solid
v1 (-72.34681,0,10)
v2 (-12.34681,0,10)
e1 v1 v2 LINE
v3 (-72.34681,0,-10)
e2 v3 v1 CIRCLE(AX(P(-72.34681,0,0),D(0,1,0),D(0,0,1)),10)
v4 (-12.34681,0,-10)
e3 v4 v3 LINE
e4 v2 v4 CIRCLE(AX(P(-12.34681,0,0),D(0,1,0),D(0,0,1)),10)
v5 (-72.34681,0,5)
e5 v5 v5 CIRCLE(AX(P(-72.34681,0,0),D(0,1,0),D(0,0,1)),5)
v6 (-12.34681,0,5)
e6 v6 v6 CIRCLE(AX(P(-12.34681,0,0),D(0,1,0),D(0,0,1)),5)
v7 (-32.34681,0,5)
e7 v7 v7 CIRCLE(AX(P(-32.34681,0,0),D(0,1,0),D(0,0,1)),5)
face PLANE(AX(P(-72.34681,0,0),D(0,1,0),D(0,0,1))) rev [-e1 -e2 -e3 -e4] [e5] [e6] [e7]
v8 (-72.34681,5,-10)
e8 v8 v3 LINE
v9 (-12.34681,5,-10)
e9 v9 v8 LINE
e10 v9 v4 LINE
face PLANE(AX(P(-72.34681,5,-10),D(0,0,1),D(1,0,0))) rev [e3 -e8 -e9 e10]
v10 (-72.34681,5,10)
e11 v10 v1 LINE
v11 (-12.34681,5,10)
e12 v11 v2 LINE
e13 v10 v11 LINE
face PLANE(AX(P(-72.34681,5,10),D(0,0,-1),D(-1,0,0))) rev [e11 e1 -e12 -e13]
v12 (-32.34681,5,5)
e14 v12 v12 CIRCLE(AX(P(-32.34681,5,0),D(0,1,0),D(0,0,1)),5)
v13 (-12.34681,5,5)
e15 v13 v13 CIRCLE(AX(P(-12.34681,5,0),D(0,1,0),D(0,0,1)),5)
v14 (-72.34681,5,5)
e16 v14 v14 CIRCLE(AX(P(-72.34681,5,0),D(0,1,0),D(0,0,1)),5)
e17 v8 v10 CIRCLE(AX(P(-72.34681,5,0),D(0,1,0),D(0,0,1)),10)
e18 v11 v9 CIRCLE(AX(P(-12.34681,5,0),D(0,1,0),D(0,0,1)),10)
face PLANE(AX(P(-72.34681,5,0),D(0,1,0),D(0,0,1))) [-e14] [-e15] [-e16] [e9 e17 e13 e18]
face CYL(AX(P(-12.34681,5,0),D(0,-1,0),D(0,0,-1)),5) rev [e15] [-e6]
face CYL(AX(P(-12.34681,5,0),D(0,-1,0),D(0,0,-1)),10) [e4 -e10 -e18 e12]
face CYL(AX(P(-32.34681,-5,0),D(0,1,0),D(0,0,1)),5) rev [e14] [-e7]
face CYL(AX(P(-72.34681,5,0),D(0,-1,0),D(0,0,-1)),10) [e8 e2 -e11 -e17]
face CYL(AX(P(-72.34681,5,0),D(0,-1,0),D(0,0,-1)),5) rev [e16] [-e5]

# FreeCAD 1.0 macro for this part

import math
import FreeCAD as App
import Part
import Sketcher
Q = App.Units.Quantity

doc = App.newDocument("Part")
body = doc.addObject("PartDesign::Body", "Body")

# Sketch on XZ plane
sketch1 = body.newObject("Sketcher::SketchObject", "Sketch")
sketch1.AttachmentSupport = (doc.getObject("XZ_Plane"), [""])
sketch1.MapMode = "FlatFace"
sketch1.addGeometry(Part.LineSegment(App.Vector(-12, -10, 0), App.Vector(-72, -10, 0)), False)
sketch1.addGeometry(Part.ArcOfCircle(Part.Circle(App.Vector(-72, 0, 0), App.Vector(0, 0, 1), 10), math.radians(90), math.radians(270)), False)
sketch1.addGeometry(Part.LineSegment(App.Vector(-72, 10, 0), App.Vector(-12, 10, 0)), False)
sketch1.addGeometry(Part.ArcOfCircle(Part.Circle(App.Vector(-12, 0, 0), App.Vector(0, 0, 1), 10), math.radians(-90), math.radians(90)), False)
sketch1.addGeometry(Part.Circle(App.Vector(-12, 0, 0), App.Vector(0, 0, 1), 5), False)
sketch1.addGeometry(Part.Circle(App.Vector(-72, 0, 0), App.Vector(0, 0, 1), 5), False)
sketch1.addConstraint(Sketcher.Constraint("Tangent", 0, 2, 1, 2))
sketch1.addConstraint(Sketcher.Constraint("Tangent", 1, 1, 2, 1))
sketch1.addConstraint(Sketcher.Constraint("Tangent", 2, 2, 3, 2))
sketch1.addConstraint(Sketcher.Constraint("Tangent", 3, 1, 0, 1))
sketch1.addConstraint(Sketcher.Constraint("Horizontal", 0))
sketch1.addConstraint(Sketcher.Constraint("Horizontal", 2))
sketch1.addConstraint(Sketcher.Constraint("Coincident", 4, 3, 3, 3))
sketch1.addConstraint(Sketcher.Constraint("Coincident", 5, 3, 1, 3))
sketch1.addConstraint(Sketcher.Constraint("Equal", 4, 5))
sketch1.addConstraint(Sketcher.Constraint("PointOnObject", 1, 3, -1))
sketch1.addConstraint(Sketcher.Constraint("Diameter", 4, Q("10 mm")))
sketch1.addConstraint(Sketcher.Constraint("Radius", 1, Q("10 mm")))
sketch1.addConstraint(Sketcher.Constraint("DistanceX", 0, 2, 0, 1, Q("60 mm")))
sketch1.addConstraint(Sketcher.Constraint("DistanceX", 1, 3, -1, 1, Q("72.34681 mm")))
pad1 = body.newObject("PartDesign::Pad", "Pad")
pad1.Profile = sketch1
pad1.Length = 5
pad1.Reversed = True

# Sketch on XZ plane
sketch2 = body.newObject("Sketcher::SketchObject", "Sketch001")
sketch2.AttachmentSupport = (doc.getObject("XZ_Plane"), [""])
sketch2.MapMode = "FlatFace"
sketch2.AttachmentOffset = App.Placement(App.Vector(0, 0, -5), App.Rotation())
sketch2.addGeometry(Part.Circle(App.Vector(-32, 0, 0), App.Vector(0, 0, 1), 5), False)
sketch2.addConstraint(Sketcher.Constraint("PointOnObject", 0, 3, -1))
sketch2.addConstraint(Sketcher.Constraint("Diameter", 0, Q("10 mm")))
sketch2.addConstraint(Sketcher.Constraint("DistanceX", 0, 3, -1, 1, Q("32.34681 mm")))
pocket1 = body.newObject("PartDesign::Pocket", "Pocket")
pocket1.Profile = sketch2
pocket1.Length = 10
pocket1.Reversed = True

doc.recompute()
